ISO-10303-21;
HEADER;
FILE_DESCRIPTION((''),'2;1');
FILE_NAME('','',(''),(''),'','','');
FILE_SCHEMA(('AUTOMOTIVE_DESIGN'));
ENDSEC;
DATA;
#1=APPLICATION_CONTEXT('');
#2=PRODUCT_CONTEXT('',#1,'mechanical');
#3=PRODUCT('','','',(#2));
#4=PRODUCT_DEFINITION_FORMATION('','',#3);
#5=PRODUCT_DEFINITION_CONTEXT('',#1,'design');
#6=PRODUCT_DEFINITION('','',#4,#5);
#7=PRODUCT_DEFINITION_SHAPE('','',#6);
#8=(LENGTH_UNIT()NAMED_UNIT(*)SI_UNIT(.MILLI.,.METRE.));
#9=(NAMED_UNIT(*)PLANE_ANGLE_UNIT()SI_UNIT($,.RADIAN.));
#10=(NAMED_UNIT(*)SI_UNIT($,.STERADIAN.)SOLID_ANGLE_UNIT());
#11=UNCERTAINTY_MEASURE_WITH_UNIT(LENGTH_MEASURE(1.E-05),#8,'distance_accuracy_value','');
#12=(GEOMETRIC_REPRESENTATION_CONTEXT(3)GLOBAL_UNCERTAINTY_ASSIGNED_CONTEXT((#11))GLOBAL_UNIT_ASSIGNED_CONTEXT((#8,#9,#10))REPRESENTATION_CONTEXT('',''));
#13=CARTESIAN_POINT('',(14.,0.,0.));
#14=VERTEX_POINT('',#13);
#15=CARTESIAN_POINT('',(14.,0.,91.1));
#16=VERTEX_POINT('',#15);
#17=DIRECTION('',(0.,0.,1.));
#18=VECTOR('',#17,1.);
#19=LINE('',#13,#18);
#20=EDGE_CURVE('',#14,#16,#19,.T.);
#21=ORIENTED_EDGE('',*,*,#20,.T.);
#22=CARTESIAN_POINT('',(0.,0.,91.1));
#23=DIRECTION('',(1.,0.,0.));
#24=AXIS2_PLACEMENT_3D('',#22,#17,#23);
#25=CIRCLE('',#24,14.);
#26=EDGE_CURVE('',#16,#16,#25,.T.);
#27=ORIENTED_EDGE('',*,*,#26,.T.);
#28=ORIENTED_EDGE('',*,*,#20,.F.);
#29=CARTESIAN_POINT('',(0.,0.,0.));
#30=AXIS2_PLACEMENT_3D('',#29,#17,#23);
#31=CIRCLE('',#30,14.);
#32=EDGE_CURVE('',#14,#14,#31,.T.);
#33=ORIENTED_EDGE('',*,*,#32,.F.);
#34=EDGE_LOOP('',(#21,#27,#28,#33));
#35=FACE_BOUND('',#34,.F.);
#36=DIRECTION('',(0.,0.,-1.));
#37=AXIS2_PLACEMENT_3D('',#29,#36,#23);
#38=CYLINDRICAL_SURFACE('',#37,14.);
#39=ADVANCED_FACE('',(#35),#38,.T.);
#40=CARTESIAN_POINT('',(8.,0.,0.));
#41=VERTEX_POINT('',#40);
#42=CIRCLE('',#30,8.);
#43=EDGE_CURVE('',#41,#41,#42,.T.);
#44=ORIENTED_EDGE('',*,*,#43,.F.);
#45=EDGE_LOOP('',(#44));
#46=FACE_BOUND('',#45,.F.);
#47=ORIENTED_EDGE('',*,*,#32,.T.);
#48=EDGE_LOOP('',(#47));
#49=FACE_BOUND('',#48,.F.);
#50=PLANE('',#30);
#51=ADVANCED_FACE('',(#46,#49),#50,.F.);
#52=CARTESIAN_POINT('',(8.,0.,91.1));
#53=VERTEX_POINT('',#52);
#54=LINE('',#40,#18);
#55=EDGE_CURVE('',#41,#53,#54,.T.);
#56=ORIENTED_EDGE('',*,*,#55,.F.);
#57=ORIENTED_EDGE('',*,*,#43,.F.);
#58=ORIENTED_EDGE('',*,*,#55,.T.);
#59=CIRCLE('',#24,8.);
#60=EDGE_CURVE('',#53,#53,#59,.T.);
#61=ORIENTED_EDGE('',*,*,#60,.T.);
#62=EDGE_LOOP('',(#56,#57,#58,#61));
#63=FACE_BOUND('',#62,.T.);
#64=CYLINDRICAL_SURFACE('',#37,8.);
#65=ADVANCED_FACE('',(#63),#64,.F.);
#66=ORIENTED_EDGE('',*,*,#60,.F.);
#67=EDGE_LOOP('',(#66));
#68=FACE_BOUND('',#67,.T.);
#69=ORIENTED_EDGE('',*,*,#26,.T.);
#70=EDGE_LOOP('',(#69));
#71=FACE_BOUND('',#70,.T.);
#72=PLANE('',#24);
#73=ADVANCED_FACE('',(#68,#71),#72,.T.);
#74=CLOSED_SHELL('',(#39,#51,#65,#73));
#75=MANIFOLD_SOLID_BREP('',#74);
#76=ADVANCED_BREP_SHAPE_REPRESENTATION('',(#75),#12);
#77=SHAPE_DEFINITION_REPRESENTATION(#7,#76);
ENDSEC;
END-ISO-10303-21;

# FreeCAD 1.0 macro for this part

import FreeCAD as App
import Part
import Sketcher

doc = App.newDocument("Part")
body = doc.addObject("PartDesign::Body", "Body")

sketch1 = body.newObject("Sketcher::SketchObject", "Sketch")
sketch1.AttachmentSupport = (doc.getObject("XY_Plane"), [""])
sketch1.MapMode = "FlatFace"
sketch1.addGeometry([
    Part.Circle(App.Vector(0, 0, 0), App.Vector(0, 0, 1), 14),
    Part.Circle(App.Vector(0, 0, 0), App.Vector(0, 0, 1), 8),
], False)
sketch1.addConstraint([
    Sketcher.Constraint("Coincident", 0, 3, -1, 1),
    Sketcher.Constraint("Coincident", 1, 3, -1, 1),
    Sketcher.Constraint("Diameter", 0, 28.0),
    Sketcher.Constraint("Diameter", 1, 16.0),
])
pad1 = body.newObject("PartDesign::Pad", "Pad")
pad1.Profile = sketch1
pad1.Length = 91.1

doc.recompute()
